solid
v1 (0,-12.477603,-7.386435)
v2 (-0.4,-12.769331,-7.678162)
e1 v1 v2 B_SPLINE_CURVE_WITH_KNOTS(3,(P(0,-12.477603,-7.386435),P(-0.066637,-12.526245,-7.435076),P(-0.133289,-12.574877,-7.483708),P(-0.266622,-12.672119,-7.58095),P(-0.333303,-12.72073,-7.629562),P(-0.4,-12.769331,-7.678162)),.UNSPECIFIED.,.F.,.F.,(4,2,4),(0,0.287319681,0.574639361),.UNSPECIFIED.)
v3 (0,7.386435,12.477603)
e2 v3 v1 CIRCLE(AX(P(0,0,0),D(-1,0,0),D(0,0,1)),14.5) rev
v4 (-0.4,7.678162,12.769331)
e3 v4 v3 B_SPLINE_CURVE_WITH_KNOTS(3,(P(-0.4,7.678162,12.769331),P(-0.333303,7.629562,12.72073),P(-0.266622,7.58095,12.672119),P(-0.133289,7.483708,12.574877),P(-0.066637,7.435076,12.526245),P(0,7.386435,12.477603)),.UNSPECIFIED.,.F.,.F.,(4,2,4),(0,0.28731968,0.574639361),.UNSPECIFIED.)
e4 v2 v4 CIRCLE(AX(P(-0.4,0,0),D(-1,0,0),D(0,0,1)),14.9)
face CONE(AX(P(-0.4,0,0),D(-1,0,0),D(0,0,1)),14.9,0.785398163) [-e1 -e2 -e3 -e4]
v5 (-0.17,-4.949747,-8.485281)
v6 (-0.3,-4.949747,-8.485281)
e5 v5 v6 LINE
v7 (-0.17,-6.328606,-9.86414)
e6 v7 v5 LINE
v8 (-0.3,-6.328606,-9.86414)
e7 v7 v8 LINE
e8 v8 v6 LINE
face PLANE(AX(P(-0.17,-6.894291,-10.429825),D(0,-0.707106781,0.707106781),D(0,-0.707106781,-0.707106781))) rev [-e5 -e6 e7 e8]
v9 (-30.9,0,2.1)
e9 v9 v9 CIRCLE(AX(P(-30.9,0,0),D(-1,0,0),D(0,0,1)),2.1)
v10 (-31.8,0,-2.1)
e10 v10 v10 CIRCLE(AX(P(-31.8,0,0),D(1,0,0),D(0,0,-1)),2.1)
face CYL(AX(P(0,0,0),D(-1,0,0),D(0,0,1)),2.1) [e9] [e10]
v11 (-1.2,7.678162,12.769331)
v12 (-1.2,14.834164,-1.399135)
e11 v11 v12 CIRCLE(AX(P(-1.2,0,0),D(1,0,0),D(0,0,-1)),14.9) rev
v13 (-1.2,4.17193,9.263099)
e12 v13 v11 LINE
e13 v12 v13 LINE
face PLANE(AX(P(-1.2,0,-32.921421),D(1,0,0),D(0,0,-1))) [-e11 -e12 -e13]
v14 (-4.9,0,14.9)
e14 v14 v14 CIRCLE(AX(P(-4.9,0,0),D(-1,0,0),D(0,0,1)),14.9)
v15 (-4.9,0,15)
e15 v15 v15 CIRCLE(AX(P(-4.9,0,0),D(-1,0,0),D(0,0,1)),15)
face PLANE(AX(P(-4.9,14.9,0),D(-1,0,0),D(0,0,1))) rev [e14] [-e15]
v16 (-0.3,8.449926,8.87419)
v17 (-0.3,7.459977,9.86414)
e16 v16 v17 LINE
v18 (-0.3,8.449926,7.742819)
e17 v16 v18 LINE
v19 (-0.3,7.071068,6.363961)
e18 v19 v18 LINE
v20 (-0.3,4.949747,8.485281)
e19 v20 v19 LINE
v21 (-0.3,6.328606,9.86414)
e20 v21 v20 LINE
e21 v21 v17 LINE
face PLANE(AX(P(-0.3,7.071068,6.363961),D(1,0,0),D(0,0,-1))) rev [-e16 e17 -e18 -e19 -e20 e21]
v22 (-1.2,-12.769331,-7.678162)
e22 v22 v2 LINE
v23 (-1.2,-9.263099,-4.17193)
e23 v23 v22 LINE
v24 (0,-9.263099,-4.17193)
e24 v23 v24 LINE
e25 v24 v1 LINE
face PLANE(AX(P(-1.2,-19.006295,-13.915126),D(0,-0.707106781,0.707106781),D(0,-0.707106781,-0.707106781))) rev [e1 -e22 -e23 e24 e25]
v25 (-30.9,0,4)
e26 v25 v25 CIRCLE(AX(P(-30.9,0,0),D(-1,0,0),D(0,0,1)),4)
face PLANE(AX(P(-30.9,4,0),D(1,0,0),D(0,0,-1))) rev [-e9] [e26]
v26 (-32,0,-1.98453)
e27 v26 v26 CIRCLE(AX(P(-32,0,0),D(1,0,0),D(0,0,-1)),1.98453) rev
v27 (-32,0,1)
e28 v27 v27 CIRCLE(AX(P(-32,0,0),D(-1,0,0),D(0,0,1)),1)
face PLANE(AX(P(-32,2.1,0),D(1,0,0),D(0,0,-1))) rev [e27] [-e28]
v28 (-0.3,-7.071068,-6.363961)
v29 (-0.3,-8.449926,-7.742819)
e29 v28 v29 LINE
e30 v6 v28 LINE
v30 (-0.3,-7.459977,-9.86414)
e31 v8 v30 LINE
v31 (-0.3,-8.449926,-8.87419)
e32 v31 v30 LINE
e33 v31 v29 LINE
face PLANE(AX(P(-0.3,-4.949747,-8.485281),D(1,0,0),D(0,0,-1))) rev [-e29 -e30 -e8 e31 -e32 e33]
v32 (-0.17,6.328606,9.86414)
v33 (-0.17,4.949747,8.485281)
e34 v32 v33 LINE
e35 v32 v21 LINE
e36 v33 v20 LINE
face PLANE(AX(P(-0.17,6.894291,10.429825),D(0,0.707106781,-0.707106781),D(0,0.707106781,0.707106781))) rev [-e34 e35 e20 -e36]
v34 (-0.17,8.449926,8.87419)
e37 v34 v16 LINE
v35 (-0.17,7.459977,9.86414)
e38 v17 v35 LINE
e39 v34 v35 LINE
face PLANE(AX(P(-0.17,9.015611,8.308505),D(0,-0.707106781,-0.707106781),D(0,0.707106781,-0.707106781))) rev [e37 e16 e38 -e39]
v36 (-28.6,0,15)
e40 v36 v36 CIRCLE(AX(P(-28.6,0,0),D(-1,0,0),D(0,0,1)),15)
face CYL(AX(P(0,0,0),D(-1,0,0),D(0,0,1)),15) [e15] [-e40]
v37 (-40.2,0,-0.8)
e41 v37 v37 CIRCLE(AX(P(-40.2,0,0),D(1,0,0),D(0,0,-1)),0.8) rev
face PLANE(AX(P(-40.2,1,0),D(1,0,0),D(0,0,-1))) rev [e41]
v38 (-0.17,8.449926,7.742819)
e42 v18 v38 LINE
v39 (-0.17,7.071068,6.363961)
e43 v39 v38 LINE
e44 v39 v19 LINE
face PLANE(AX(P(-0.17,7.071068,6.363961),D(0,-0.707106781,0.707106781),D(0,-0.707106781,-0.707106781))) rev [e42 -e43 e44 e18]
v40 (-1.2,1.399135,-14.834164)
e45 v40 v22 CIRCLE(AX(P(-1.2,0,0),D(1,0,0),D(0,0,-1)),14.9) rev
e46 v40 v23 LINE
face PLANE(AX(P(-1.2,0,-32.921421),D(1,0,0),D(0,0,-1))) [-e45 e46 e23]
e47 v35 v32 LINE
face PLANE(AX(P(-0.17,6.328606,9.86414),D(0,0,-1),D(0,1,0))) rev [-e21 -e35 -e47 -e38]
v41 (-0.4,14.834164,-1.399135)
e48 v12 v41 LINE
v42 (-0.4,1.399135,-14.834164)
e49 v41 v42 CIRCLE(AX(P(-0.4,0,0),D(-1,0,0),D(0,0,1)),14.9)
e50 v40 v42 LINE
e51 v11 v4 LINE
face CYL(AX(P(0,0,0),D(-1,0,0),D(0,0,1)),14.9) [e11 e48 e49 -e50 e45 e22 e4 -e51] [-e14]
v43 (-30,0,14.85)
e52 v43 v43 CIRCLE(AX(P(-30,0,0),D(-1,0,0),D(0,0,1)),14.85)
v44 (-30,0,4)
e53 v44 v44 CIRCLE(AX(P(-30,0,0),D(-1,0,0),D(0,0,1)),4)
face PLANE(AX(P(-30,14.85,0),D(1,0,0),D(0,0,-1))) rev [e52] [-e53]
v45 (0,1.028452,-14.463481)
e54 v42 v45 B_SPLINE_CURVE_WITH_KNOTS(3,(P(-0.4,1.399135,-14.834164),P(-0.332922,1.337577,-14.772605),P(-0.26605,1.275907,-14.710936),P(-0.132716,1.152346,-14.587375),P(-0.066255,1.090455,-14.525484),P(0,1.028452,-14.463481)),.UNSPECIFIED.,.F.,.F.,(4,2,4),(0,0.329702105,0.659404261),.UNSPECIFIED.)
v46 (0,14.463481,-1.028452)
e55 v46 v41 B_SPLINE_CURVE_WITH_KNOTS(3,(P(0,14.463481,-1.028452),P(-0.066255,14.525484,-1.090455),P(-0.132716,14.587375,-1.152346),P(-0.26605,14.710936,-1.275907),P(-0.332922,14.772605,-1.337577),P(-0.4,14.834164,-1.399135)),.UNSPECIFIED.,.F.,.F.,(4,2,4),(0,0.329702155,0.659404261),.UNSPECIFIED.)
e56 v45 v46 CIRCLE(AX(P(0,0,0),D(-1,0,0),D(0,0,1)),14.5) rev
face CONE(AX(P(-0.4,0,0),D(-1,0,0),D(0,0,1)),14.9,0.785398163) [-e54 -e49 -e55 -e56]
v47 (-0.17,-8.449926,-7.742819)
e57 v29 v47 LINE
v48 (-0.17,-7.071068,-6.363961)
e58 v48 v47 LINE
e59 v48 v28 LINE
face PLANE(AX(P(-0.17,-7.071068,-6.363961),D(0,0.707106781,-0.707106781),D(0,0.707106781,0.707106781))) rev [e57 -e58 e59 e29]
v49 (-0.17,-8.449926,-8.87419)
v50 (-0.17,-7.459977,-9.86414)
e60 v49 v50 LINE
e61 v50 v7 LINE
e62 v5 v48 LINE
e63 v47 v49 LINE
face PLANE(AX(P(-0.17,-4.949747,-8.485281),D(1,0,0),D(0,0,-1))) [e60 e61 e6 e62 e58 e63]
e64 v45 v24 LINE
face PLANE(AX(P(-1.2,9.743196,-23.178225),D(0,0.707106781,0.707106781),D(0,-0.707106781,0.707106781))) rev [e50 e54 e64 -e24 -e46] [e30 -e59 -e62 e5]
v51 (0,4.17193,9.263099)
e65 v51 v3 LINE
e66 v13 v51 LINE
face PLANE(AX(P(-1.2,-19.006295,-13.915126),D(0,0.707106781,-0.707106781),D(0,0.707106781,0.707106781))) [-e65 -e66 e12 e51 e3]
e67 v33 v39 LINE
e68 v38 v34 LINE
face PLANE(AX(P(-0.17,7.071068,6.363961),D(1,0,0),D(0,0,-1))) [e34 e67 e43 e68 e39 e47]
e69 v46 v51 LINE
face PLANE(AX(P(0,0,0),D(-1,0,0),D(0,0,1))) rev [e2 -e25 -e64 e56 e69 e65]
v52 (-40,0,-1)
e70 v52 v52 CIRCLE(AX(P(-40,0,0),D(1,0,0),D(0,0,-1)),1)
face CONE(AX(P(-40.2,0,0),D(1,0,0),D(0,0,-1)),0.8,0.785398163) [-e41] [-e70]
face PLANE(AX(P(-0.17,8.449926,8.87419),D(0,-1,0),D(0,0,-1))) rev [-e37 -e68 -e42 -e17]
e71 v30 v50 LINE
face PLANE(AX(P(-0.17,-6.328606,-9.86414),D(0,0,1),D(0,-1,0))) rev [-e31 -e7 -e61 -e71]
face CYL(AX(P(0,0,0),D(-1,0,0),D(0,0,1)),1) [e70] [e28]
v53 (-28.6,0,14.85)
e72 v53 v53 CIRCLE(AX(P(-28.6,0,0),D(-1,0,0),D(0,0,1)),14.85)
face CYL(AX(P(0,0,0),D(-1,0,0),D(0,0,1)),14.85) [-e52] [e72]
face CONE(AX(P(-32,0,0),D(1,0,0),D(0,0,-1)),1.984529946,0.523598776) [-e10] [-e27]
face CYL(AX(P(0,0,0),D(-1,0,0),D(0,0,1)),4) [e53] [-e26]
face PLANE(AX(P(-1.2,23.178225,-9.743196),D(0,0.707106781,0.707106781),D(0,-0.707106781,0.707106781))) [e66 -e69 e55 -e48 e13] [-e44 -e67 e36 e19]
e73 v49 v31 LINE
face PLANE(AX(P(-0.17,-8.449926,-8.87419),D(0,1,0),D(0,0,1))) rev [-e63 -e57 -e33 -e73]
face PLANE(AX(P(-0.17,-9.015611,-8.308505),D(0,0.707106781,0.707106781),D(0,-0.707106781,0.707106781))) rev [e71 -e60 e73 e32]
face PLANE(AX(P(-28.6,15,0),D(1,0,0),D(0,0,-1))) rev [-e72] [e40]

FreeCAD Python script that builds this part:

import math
import FreeCAD as App
import Part
import Sketcher
Q = App.Units.Quantity


def edges_at(feature, points):
    """Names of the edges that pass closest to the given points."""
    edges = feature.Shape.Edges
    near = lambda p: min(range(len(edges)), key=lambda i: edges[i].distToShape(Part.Vertex(*p))[0])
    return sorted({f"Edge{near(p) + 1}" for p in points})

doc = App.newDocument("Part")
body = doc.addObject("PartDesign::Body", "Body")

# Sketch on XY plane
sketch1 = body.newObject("Sketcher::SketchObject", "Sketch")
sketch1.AttachmentSupport = (doc.getObject("XY_Plane"), [""])
sketch1.MapMode = "FlatFace"
sketch1.addGeometry([
    Part.LineSegment(App.Vector(0, 0, 0), App.Vector(0, 14.9, 0)),  # 0
    Part.LineSegment(App.Vector(0, 14.9, 0), App.Vector(-4.9, 14.9, 0)),  # 1
    Part.LineSegment(App.Vector(-4.9, 14.9, 0), App.Vector(-4.9, 15, 0)),  # 2
    Part.LineSegment(App.Vector(-4.9, 15, 0), App.Vector(-28.6, 15, 0)),  # 3
    Part.LineSegment(App.Vector(-28.6, 15, 0), App.Vector(-28.6, 14.85, 0)),  # 4
    Part.LineSegment(App.Vector(-28.6, 14.85, 0), App.Vector(-30, 14.85, 0)),  # 5
    Part.LineSegment(App.Vector(-30, 14.85, 0), App.Vector(-30, 4, 0)),  # 6
    Part.LineSegment(App.Vector(-30, 4, 0), App.Vector(-30.9, 4, 0)),  # 7
    Part.LineSegment(App.Vector(-30.9, 4, 0), App.Vector(-30.9, 2.1, 0)),  # 8
    Part.LineSegment(App.Vector(-30.9, 2.1, 0), App.Vector(-32, 2.1, 0)),  # 9
    Part.LineSegment(App.Vector(-32, 2.1, 0), App.Vector(-32, 1, 0)),  # 10
    Part.LineSegment(App.Vector(-32, 1, 0), App.Vector(-40.2, 1, 0)),  # 11
    Part.LineSegment(App.Vector(-40.2, 1, 0), App.Vector(-40.2, 0, 0)),  # 12
    Part.LineSegment(App.Vector(-40.2, 0, 0), App.Vector(0, 0, 0)),  # 13
], False)
sketch1.addConstraint([
    Sketcher.Constraint("Coincident", 0, 2, 1, 1),
    Sketcher.Constraint("Coincident", 1, 2, 2, 1),
    Sketcher.Constraint("Coincident", 2, 2, 3, 1),
    Sketcher.Constraint("Coincident", 3, 2, 4, 1),
    Sketcher.Constraint("Coincident", 4, 2, 5, 1),
    Sketcher.Constraint("Coincident", 5, 2, 6, 1),
    Sketcher.Constraint("Coincident", 6, 2, 7, 1),
    Sketcher.Constraint("Coincident", 7, 2, 8, 1),
    Sketcher.Constraint("Coincident", 8, 2, 9, 1),
    Sketcher.Constraint("Coincident", 9, 2, 10, 1),
    Sketcher.Constraint("Coincident", 10, 2, 11, 1),
    Sketcher.Constraint("Coincident", 11, 2, 12, 1),
    Sketcher.Constraint("Coincident", 12, 2, 13, 1),
    Sketcher.Constraint("Coincident", 13, 2, 0, 1),
    Sketcher.Constraint("Vertical", 0),
    Sketcher.Constraint("Horizontal", 1),
    Sketcher.Constraint("Vertical", 2),
    Sketcher.Constraint("Horizontal", 3),
    Sketcher.Constraint("Vertical", 4),
    Sketcher.Constraint("Horizontal", 5),
    Sketcher.Constraint("Vertical", 6),
    Sketcher.Constraint("Horizontal", 7),
    Sketcher.Constraint("Vertical", 8),
    Sketcher.Constraint("Horizontal", 9),
    Sketcher.Constraint("Vertical", 10),
    Sketcher.Constraint("Horizontal", 11),
    Sketcher.Constraint("Vertical", 12),
    Sketcher.Constraint("Horizontal", 13),
    Sketcher.Constraint("Coincident", 13, 2, -1, 1),
    Sketcher.Constraint("Equal", 9, 10),
    Sketcher.Constraint("DistanceY", 12, 2, 12, 1, 1.0),
    Sketcher.Constraint("DistanceX", 1, 2, 1, 1, 4.9),
    Sketcher.Constraint("DistanceX", 3, 2, 3, 1, 23.7),
    Sketcher.Constraint("DistanceX", 5, 2, 5, 1, 1.4),
    Sketcher.Constraint("DistanceX", 7, 2, 7, 1, 0.9),
    Sketcher.Constraint("DistanceX", 9, 2, 9, 1, 1.1),
    Sketcher.Constraint("DistanceX", 11, 2, 11, 1, 8.2),
    Sketcher.Constraint("DistanceY", 0, 1, 0, 2, 14.9),
    Sketcher.Constraint("DistanceY", 2, 1, 2, 2, 0.1),
    Sketcher.Constraint("DistanceY", 8, 2, 8, 1, 1.9),
    Sketcher.Constraint("DistanceY", 4, 2, 4, 1, 0.15),
])
revolution = body.newObject("PartDesign::Revolution", "Revolution")
revolution.Profile = sketch1
revolution.ReferenceAxis = (sketch1, ["H_Axis"])
revolution.Angle = 360

# Sketch on YZ plane
sketch2 = body.newObject("Sketcher::SketchObject", "Sketch001")
sketch2.AttachmentSupport = (doc.getObject("YZ_Plane"), [""])
sketch2.MapMode = "FlatFace"
sketch2.addGeometry([
    Part.LineSegment(App.Vector(4.2, 9.3, 0), App.Vector(14.8, -1.4, 0)),  # 0
    Part.ArcOfCircle(Part.Circle(App.Vector(0, 0, 0), App.Vector(0, 0, 1), 14.9), math.radians(-5), math.radians(59)),  # 1
    Part.LineSegment(App.Vector(7.7, 12.8, 0), App.Vector(4.2, 9.3, 0)),  # 2
    Part.ArcOfCircle(Part.Circle(App.Vector(0, 0, 0), App.Vector(0, 0, 1), 14.9), math.radians(-90), math.radians(-84.61)),  # 3
    Part.LineSegment(App.Vector(1.4, -14.8, 0), App.Vector(-9.3, -4.2, 0)),  # 4
    Part.LineSegment(App.Vector(-9.3, -4.2, 0), App.Vector(-12.8, -7.7, 0)),  # 5
    Part.ArcOfCircle(Part.Circle(App.Vector(0, 0, 0), App.Vector(0, 0, 1), 14.9), math.radians(-149), math.radians(-90)),  # 6
], False)
sketch2.addConstraint([
    Sketcher.Constraint("Coincident", 0, 2, 1, 1),
    Sketcher.Constraint("Coincident", 1, 2, 2, 1),
    Sketcher.Constraint("Coincident", 2, 2, 0, 1),
    Sketcher.Constraint("Coincident", 3, 2, 4, 1),
    Sketcher.Constraint("Coincident", 4, 2, 5, 1),
    Sketcher.Constraint("Coincident", 5, 2, 6, 1),
    Sketcher.Constraint("Tangent", 6, 2, 3, 1),
    Sketcher.Constraint("Coincident", 1, 3, -1, 1),
    Sketcher.Constraint("Coincident", 3, 3, -1, 1),
    Sketcher.Constraint("Equal", 1, 3),
    Sketcher.Constraint("Equal", 3, 6),
    Sketcher.Constraint("PointOnObject", 6, 2, -2),
    Sketcher.Constraint("Perpendicular", 0, 2),
    Sketcher.Constraint("Perpendicular", 2, 4),
    Sketcher.Constraint("Perpendicular", 4, 5),
    Sketcher.Constraint("Equal", 0, 4),
    Sketcher.Constraint("Equal", 2, 5),
    Sketcher.Constraint("Radius", 1, 14.9),
    Sketcher.Constraint("Angle", 0, Q("-45 deg")),
    Sketcher.Constraint("DistanceX", 1, 2, 0, 2, 7.156002),
    Sketcher.Constraint("DistanceY", -1, 1, 2, 2, 9.263099),
])
pocket1 = body.newObject("PartDesign::Pocket", "Pocket")
pocket1.Profile = sketch2
pocket1.Length = 1.2
doc.recompute()

chamfer = body.newObject("PartDesign::Chamfer", "Chamfer")
chamfer.Base = (pocket1, edges_at(pocket1, [(-40.2, 0, -1)]))
chamfer.Size = 0.2

# Sketch on YZ plane
sketch3 = body.newObject("Sketcher::SketchObject", "Sketch002")
sketch3.AttachmentSupport = (doc.getObject("YZ_Plane"), [""])
sketch3.MapMode = "FlatFace"
sketch3.AttachmentOffset = App.Placement(App.Vector(0, 0, -0.3), App.Rotation())
sketch3.addGeometry([
    Part.LineSegment(App.Vector(7.1, 6.4, 0), App.Vector(9, 8.3, 0)),  # 0
    Part.LineSegment(App.Vector(9, 8.3, 0), App.Vector(6.9, 10.4, 0)),  # 1
    Part.LineSegment(App.Vector(6.9, 10.4, 0), App.Vector(4.9, 8.5, 0)),  # 2
    Part.LineSegment(App.Vector(4.9, 8.5, 0), App.Vector(7.1, 6.4, 0)),  # 3
    Part.LineSegment(App.Vector(-4.9, -8.5, 0), App.Vector(-7.1, -6.4, 0)),  # 4
    Part.LineSegment(App.Vector(-7.1, -6.4, 0), App.Vector(-9, -8.3, 0)),  # 5
    Part.LineSegment(App.Vector(-9, -8.3, 0), App.Vector(-6.9, -10.4, 0)),  # 6
    Part.LineSegment(App.Vector(-6.9, -10.4, 0), App.Vector(-4.9, -8.5, 0)),  # 7
], False)
sketch3.addConstraint([
    Sketcher.Constraint("Coincident", 0, 2, 1, 1),
    Sketcher.Constraint("Coincident", 1, 2, 2, 1),
    Sketcher.Constraint("Coincident", 2, 2, 3, 1),
    Sketcher.Constraint("Coincident", 3, 2, 0, 1),
    Sketcher.Constraint("Coincident", 4, 2, 5, 1),
    Sketcher.Constraint("Coincident", 5, 2, 6, 1),
    Sketcher.Constraint("Coincident", 6, 2, 7, 1),
    Sketcher.Constraint("Coincident", 7, 2, 4, 1),
    Sketcher.Constraint("Symmetric", 3, 2, 4, 2, -1, 1),
    Sketcher.Constraint("Symmetric", 0, 2, 5, 2, -1, 1),
    Sketcher.Constraint("Symmetric", 1, 2, 6, 2, -1, 1),
    Sketcher.Constraint("Symmetric", 2, 2, 7, 2, -1, 1),
    Sketcher.Constraint("Perpendicular", 0, 1),
    Sketcher.Constraint("Perpendicular", 1, 2),
    Sketcher.Constraint("Perpendicular", 2, 3),
    Sketcher.Constraint("Angle", 0, Q("45 deg")),
    Sketcher.Constraint("Distance", 1, 3.0),
    Sketcher.Constraint("Distance", 0, 2.75),
    Sketcher.Constraint("DistanceX", -1, 1, 0, 2, 9.015611),
    Sketcher.Constraint("DistanceY", -1, 1, 2, 2, 8.485281),
])
pad1 = body.newObject("PartDesign::Pad", "Pad")
pad1.Profile = sketch3
pad1.Length = 0.13
doc.recompute()

chamfer2 = body.newObject("PartDesign::Chamfer", "Chamfer001")
chamfer2.Base = (pad1, edges_at(pad1, [
    (-0.235, 9.016, 8.309),
    (-0.235, 6.894, 10.43),
    (-0.235, -6.894, -10.43),
    (-0.235, -9.016, -8.309),
]))
chamfer2.Size = 0.8
doc.recompute()

chamfer3 = body.newObject("PartDesign::Chamfer", "Chamfer002")
chamfer3.Base = (chamfer2, edges_at(chamfer2, [(0, 10.536, -10.536), (0, -12.969, 7.335)]))
chamfer3.Size = 0.4
doc.recompute()

chamfer4 = body.newObject("PartDesign::Chamfer", "Chamfer003")
chamfer4.Base = (chamfer3, edges_at(chamfer3, [(-32, 0, -2.1)]))
chamfer4.ChamferType = "Two distances"
chamfer4.Size = 0.2
chamfer4.Size2 = 0.11547

doc.recompute()
